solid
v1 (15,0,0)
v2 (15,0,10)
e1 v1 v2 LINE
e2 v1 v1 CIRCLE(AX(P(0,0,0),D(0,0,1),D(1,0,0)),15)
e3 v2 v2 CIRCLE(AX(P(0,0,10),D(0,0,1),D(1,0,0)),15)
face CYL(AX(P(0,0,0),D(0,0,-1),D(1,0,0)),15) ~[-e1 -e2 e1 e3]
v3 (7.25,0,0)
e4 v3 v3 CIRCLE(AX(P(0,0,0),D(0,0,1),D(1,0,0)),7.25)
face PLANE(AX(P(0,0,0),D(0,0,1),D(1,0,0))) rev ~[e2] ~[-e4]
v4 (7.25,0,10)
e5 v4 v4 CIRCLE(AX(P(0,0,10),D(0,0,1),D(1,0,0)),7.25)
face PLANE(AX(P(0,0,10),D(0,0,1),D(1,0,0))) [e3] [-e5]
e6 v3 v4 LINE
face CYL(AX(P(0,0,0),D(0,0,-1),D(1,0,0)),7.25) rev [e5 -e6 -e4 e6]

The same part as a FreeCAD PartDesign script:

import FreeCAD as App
import Part
import Sketcher
from FreeCAD import Vector
Q = App.Units.Quantity

doc = App.newDocument("Part")
body = doc.addObject("PartDesign::Body", "Body")

# Sketch on XY plane
sketch1 = doc.addObject("Sketcher::SketchObject", "Sketch")
body.addObject(sketch1)
sketch1.AttachmentSupport = (doc.XY_Plane, [""])
sketch1.MapMode = "FlatFace"
sketch1.addGeometry([
    Part.Circle(Vector(0, 0, 0), Vector(0, 0, 1), 15),
    Part.Circle(Vector(0, 0, 0), Vector(0, 0, 1), 7),
], False)
sketch1.addConstraint([
    Sketcher.Constraint("Coincident", 0, 3, -1, 1),
    Sketcher.Constraint("Coincident", 1, 3, -1, 1),
    Sketcher.Constraint("Diameter", 0, Q("30 mm")),
    Sketcher.Constraint("Diameter", 1, Q("14.5 mm")),
])
pad1 = doc.addObject("PartDesign::Pad", "Pad")
body.addObject(pad1)
pad1.Profile = sketch1
pad1.Length = 10

doc.recompute()
